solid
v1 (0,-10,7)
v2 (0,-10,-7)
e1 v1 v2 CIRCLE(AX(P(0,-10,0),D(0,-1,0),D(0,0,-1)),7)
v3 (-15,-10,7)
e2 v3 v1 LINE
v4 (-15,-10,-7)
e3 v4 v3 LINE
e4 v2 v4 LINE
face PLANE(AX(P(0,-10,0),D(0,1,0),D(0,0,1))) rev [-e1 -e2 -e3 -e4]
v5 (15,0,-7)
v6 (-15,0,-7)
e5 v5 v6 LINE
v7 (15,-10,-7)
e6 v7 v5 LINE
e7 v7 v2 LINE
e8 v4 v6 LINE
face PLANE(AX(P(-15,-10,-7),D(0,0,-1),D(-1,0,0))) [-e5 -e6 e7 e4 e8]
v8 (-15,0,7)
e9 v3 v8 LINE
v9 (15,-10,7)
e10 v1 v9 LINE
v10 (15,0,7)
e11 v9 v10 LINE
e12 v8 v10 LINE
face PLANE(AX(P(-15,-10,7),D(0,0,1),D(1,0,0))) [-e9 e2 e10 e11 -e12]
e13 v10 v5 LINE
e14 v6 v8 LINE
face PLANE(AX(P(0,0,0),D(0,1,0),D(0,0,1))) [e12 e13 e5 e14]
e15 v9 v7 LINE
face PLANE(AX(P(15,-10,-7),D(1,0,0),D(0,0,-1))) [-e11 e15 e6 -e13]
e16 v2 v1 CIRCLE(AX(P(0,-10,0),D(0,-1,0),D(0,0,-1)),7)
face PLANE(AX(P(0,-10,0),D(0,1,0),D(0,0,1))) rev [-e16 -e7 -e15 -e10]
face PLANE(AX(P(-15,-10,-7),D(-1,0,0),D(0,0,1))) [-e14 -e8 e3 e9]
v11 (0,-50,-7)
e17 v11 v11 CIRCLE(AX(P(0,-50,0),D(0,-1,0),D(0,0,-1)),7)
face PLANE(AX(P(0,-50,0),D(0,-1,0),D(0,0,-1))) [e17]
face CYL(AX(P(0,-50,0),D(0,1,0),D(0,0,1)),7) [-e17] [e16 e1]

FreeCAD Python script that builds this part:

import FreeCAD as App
import Part
import Sketcher
from FreeCAD import Vector
Q = App.Units.Quantity

doc = App.newDocument("Part")
body = doc.addObject("PartDesign::Body", "Body")

# Sketch on XZ plane
sketch1 = body.newObject("Sketcher::SketchObject", "Sketch")
sketch1.AttachmentSupport = (doc.getObject("XZ_Plane"), [""])
sketch1.MapMode = "FlatFace"
sketch1.addGeometry([
    Part.LineSegment(Vector(-15, -7, 0), Vector(-15, 7, 0)),
    Part.LineSegment(Vector(-15, 7, 0), Vector(15, 7, 0)),
    Part.LineSegment(Vector(15, 7, 0), Vector(15, -7, 0)),
    Part.LineSegment(Vector(15, -7, 0), Vector(-15, -7, 0)),
], False)
sketch1.addConstraint([
    Sketcher.Constraint("Coincident", 0, 2, 1, 1),
    Sketcher.Constraint("Coincident", 1, 2, 2, 1),
    Sketcher.Constraint("Coincident", 2, 2, 3, 1),
    Sketcher.Constraint("Coincident", 3, 2, 0, 1),
    Sketcher.Constraint("Vertical", 0),
    Sketcher.Constraint("Horizontal", 1),
    Sketcher.Constraint("Vertical", 2),
    Sketcher.Constraint("Horizontal", 3),
    Sketcher.Constraint("Symmetric", 0, 2, 2, 2, -1, 1),
    Sketcher.Constraint("DistanceX", 1, 1, 1, 2, Q("30 mm")),
    Sketcher.Constraint("DistanceY", 0, 1, 0, 2, Q("14 mm")),
])
pad1 = body.newObject("PartDesign::Pad", "Pad")
pad1.Profile = sketch1
pad1.Length = 10

# Sketch on XZ plane
sketch2 = body.newObject("Sketcher::SketchObject", "Sketch001")
sketch2.AttachmentSupport = (doc.getObject("XZ_Plane"), [""])
sketch2.MapMode = "FlatFace"
sketch2.AttachmentOffset = App.Placement(Vector(0, 0, 10), App.Rotation())
sketch2.addGeometry(Part.Circle(Vector(0, 0, 0), Vector(0, 0, 1), 7), False)
sketch2.addConstraint([
    Sketcher.Constraint("Coincident", 0, 3, -1, 1),
    Sketcher.Constraint("Diameter", 0, Q("14 mm")),
])
pad2 = body.newObject("PartDesign::Pad", "Pad001")
pad2.Profile = sketch2
pad2.Length = 40

doc.recompute()
